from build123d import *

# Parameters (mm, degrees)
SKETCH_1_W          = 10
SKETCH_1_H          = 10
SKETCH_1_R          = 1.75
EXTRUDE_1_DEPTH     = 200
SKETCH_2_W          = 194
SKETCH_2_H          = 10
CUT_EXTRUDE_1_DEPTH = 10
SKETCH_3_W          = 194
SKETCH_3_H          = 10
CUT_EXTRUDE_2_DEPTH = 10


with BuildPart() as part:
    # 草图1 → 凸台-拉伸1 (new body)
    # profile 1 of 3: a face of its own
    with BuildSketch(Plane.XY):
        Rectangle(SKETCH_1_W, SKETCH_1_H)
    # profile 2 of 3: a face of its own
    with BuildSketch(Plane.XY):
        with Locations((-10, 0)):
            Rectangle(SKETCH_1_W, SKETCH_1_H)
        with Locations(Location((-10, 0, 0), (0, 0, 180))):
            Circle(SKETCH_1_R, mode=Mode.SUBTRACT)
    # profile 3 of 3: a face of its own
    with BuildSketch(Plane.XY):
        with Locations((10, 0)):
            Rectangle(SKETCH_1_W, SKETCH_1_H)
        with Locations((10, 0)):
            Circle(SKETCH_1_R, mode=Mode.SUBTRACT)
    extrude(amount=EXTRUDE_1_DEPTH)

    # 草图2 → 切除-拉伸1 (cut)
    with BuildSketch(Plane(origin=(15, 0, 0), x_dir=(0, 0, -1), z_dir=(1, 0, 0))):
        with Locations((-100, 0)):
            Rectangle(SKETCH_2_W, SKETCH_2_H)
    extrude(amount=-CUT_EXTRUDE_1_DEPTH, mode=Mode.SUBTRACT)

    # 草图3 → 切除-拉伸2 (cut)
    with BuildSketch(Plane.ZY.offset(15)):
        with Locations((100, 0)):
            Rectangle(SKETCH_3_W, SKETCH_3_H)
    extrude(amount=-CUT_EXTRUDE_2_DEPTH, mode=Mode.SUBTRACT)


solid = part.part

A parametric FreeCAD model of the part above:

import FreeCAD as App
import Part
import Sketcher


def add_polygon(sketch, points):
    """Adds a closed chain of lines whose ends are joined by coincident constraints."""
    first, n = sketch.GeometryCount, len(points)
    for a, b in zip(points, points[1:] + points[:1]):
        sketch.addGeometry(Part.LineSegment(App.Vector(*a, 0), App.Vector(*b, 0)), False)
    for i in range(n):
        sketch.addConstraint(Sketcher.Constraint("Coincident", first + i, 2, first + (i + 1) % n, 1))

doc = App.newDocument("Part")
body = doc.addObject("PartDesign::Body", "Body")

sketch1 = body.newObject("Sketcher::SketchObject", "Sketch")
sketch1.AttachmentSupport = (doc.getObject("XY_Plane"), [""])
sketch1.MapMode = "FlatFace"
add_polygon(sketch1, [(15, -5), (15, 5), (-15, 5), (-15, -5)])
sketch1.addGeometry(Part.Circle(App.Vector(-10, 0, 0), App.Vector(0, 0, 1), 1.8), False)
sketch1.addGeometry(Part.Circle(App.Vector(10, 0, 0), App.Vector(0, 0, 1), 1.8), False)
sketch1.addConstraint([
    Sketcher.Constraint("Vertical", 0),
    Sketcher.Constraint("Horizontal", 1),
    Sketcher.Constraint("Vertical", 2),
    Sketcher.Constraint("Horizontal", 3),
    Sketcher.Constraint("Equal", 4, 5),
    Sketcher.Constraint("Symmetric", 4, 3, 5, 3, -1, 1),
    Sketcher.Constraint("Symmetric", 0, 2, 2, 2, -1, 1),
    Sketcher.Constraint("PointOnObject", 4, 3, -1),
    Sketcher.Constraint("Diameter", 4, 3.5),
    Sketcher.Constraint("DistanceX", 1, 2, 1, 1, 30.0),
    Sketcher.Constraint("DistanceY", 0, 1, 0, 2, 10.0),
    Sketcher.Constraint("DistanceX", 4, 3, -1, 1, 10.0),
])
pad1 = body.newObject("PartDesign::Pad", "Pad")
pad1.Profile = sketch1
pad1.Length = 200

sketch2 = body.newObject("Sketcher::SketchObject", "Sketch001")
sketch2.AttachmentSupport = (doc.getObject("YZ_Plane"), [""])
sketch2.MapMode = "FlatFace"
sketch2.AttachmentOffset = App.Placement(App.Vector(0, 0, 15), App.Rotation())
add_polygon(sketch2, [(5, 197), (-5, 197), (-5, 3), (5, 3)])
sketch2.addConstraint([
    Sketcher.Constraint("Horizontal", 0),
    Sketcher.Constraint("Vertical", 1),
    Sketcher.Constraint("Horizontal", 2),
    Sketcher.Constraint("Vertical", 3),
    Sketcher.Constraint("DistanceX", 0, 2, 0, 1, 10.0),
    Sketcher.Constraint("DistanceY", 1, 2, 1, 1, 194.0),
    Sketcher.Constraint("DistanceX", 0, 2, -1, 1, 5.0),
    Sketcher.Constraint("DistanceY", -1, 1, 0, 2, 197.0),
])
pocket1 = body.newObject("PartDesign::Pocket", "Pocket")
pocket1.Profile = sketch2
pocket1.Length = 10

sketch3 = body.newObject("Sketcher::SketchObject", "Sketch002")
sketch3.AttachmentSupport = (doc.getObject("YZ_Plane"), [""])
sketch3.MapMode = "FlatFace"
sketch3.AttachmentOffset = App.Placement(App.Vector(0, 0, -15), App.Rotation())
add_polygon(sketch3, [(5, 3), (-5, 3), (-5, 197), (5, 197)])
sketch3.addConstraint([
    Sketcher.Constraint("Horizontal", 0),
    Sketcher.Constraint("Vertical", 1),
    Sketcher.Constraint("Horizontal", 2),
    Sketcher.Constraint("Vertical", 3),
    Sketcher.Constraint("DistanceX", 0, 2, 0, 1, 10.0),
    Sketcher.Constraint("DistanceY", 1, 1, 1, 2, 194.0),
    Sketcher.Constraint("DistanceX", 0, 2, -1, 1, 5.0),
    Sketcher.Constraint("DistanceY", -1, 1, 0, 2, 3.0),
])
pocket2 = body.newObject("PartDesign::Pocket", "Pocket001")
pocket2.Profile = sketch3
pocket2.Length = 10
pocket2.Reversed = True

doc.recompute()
